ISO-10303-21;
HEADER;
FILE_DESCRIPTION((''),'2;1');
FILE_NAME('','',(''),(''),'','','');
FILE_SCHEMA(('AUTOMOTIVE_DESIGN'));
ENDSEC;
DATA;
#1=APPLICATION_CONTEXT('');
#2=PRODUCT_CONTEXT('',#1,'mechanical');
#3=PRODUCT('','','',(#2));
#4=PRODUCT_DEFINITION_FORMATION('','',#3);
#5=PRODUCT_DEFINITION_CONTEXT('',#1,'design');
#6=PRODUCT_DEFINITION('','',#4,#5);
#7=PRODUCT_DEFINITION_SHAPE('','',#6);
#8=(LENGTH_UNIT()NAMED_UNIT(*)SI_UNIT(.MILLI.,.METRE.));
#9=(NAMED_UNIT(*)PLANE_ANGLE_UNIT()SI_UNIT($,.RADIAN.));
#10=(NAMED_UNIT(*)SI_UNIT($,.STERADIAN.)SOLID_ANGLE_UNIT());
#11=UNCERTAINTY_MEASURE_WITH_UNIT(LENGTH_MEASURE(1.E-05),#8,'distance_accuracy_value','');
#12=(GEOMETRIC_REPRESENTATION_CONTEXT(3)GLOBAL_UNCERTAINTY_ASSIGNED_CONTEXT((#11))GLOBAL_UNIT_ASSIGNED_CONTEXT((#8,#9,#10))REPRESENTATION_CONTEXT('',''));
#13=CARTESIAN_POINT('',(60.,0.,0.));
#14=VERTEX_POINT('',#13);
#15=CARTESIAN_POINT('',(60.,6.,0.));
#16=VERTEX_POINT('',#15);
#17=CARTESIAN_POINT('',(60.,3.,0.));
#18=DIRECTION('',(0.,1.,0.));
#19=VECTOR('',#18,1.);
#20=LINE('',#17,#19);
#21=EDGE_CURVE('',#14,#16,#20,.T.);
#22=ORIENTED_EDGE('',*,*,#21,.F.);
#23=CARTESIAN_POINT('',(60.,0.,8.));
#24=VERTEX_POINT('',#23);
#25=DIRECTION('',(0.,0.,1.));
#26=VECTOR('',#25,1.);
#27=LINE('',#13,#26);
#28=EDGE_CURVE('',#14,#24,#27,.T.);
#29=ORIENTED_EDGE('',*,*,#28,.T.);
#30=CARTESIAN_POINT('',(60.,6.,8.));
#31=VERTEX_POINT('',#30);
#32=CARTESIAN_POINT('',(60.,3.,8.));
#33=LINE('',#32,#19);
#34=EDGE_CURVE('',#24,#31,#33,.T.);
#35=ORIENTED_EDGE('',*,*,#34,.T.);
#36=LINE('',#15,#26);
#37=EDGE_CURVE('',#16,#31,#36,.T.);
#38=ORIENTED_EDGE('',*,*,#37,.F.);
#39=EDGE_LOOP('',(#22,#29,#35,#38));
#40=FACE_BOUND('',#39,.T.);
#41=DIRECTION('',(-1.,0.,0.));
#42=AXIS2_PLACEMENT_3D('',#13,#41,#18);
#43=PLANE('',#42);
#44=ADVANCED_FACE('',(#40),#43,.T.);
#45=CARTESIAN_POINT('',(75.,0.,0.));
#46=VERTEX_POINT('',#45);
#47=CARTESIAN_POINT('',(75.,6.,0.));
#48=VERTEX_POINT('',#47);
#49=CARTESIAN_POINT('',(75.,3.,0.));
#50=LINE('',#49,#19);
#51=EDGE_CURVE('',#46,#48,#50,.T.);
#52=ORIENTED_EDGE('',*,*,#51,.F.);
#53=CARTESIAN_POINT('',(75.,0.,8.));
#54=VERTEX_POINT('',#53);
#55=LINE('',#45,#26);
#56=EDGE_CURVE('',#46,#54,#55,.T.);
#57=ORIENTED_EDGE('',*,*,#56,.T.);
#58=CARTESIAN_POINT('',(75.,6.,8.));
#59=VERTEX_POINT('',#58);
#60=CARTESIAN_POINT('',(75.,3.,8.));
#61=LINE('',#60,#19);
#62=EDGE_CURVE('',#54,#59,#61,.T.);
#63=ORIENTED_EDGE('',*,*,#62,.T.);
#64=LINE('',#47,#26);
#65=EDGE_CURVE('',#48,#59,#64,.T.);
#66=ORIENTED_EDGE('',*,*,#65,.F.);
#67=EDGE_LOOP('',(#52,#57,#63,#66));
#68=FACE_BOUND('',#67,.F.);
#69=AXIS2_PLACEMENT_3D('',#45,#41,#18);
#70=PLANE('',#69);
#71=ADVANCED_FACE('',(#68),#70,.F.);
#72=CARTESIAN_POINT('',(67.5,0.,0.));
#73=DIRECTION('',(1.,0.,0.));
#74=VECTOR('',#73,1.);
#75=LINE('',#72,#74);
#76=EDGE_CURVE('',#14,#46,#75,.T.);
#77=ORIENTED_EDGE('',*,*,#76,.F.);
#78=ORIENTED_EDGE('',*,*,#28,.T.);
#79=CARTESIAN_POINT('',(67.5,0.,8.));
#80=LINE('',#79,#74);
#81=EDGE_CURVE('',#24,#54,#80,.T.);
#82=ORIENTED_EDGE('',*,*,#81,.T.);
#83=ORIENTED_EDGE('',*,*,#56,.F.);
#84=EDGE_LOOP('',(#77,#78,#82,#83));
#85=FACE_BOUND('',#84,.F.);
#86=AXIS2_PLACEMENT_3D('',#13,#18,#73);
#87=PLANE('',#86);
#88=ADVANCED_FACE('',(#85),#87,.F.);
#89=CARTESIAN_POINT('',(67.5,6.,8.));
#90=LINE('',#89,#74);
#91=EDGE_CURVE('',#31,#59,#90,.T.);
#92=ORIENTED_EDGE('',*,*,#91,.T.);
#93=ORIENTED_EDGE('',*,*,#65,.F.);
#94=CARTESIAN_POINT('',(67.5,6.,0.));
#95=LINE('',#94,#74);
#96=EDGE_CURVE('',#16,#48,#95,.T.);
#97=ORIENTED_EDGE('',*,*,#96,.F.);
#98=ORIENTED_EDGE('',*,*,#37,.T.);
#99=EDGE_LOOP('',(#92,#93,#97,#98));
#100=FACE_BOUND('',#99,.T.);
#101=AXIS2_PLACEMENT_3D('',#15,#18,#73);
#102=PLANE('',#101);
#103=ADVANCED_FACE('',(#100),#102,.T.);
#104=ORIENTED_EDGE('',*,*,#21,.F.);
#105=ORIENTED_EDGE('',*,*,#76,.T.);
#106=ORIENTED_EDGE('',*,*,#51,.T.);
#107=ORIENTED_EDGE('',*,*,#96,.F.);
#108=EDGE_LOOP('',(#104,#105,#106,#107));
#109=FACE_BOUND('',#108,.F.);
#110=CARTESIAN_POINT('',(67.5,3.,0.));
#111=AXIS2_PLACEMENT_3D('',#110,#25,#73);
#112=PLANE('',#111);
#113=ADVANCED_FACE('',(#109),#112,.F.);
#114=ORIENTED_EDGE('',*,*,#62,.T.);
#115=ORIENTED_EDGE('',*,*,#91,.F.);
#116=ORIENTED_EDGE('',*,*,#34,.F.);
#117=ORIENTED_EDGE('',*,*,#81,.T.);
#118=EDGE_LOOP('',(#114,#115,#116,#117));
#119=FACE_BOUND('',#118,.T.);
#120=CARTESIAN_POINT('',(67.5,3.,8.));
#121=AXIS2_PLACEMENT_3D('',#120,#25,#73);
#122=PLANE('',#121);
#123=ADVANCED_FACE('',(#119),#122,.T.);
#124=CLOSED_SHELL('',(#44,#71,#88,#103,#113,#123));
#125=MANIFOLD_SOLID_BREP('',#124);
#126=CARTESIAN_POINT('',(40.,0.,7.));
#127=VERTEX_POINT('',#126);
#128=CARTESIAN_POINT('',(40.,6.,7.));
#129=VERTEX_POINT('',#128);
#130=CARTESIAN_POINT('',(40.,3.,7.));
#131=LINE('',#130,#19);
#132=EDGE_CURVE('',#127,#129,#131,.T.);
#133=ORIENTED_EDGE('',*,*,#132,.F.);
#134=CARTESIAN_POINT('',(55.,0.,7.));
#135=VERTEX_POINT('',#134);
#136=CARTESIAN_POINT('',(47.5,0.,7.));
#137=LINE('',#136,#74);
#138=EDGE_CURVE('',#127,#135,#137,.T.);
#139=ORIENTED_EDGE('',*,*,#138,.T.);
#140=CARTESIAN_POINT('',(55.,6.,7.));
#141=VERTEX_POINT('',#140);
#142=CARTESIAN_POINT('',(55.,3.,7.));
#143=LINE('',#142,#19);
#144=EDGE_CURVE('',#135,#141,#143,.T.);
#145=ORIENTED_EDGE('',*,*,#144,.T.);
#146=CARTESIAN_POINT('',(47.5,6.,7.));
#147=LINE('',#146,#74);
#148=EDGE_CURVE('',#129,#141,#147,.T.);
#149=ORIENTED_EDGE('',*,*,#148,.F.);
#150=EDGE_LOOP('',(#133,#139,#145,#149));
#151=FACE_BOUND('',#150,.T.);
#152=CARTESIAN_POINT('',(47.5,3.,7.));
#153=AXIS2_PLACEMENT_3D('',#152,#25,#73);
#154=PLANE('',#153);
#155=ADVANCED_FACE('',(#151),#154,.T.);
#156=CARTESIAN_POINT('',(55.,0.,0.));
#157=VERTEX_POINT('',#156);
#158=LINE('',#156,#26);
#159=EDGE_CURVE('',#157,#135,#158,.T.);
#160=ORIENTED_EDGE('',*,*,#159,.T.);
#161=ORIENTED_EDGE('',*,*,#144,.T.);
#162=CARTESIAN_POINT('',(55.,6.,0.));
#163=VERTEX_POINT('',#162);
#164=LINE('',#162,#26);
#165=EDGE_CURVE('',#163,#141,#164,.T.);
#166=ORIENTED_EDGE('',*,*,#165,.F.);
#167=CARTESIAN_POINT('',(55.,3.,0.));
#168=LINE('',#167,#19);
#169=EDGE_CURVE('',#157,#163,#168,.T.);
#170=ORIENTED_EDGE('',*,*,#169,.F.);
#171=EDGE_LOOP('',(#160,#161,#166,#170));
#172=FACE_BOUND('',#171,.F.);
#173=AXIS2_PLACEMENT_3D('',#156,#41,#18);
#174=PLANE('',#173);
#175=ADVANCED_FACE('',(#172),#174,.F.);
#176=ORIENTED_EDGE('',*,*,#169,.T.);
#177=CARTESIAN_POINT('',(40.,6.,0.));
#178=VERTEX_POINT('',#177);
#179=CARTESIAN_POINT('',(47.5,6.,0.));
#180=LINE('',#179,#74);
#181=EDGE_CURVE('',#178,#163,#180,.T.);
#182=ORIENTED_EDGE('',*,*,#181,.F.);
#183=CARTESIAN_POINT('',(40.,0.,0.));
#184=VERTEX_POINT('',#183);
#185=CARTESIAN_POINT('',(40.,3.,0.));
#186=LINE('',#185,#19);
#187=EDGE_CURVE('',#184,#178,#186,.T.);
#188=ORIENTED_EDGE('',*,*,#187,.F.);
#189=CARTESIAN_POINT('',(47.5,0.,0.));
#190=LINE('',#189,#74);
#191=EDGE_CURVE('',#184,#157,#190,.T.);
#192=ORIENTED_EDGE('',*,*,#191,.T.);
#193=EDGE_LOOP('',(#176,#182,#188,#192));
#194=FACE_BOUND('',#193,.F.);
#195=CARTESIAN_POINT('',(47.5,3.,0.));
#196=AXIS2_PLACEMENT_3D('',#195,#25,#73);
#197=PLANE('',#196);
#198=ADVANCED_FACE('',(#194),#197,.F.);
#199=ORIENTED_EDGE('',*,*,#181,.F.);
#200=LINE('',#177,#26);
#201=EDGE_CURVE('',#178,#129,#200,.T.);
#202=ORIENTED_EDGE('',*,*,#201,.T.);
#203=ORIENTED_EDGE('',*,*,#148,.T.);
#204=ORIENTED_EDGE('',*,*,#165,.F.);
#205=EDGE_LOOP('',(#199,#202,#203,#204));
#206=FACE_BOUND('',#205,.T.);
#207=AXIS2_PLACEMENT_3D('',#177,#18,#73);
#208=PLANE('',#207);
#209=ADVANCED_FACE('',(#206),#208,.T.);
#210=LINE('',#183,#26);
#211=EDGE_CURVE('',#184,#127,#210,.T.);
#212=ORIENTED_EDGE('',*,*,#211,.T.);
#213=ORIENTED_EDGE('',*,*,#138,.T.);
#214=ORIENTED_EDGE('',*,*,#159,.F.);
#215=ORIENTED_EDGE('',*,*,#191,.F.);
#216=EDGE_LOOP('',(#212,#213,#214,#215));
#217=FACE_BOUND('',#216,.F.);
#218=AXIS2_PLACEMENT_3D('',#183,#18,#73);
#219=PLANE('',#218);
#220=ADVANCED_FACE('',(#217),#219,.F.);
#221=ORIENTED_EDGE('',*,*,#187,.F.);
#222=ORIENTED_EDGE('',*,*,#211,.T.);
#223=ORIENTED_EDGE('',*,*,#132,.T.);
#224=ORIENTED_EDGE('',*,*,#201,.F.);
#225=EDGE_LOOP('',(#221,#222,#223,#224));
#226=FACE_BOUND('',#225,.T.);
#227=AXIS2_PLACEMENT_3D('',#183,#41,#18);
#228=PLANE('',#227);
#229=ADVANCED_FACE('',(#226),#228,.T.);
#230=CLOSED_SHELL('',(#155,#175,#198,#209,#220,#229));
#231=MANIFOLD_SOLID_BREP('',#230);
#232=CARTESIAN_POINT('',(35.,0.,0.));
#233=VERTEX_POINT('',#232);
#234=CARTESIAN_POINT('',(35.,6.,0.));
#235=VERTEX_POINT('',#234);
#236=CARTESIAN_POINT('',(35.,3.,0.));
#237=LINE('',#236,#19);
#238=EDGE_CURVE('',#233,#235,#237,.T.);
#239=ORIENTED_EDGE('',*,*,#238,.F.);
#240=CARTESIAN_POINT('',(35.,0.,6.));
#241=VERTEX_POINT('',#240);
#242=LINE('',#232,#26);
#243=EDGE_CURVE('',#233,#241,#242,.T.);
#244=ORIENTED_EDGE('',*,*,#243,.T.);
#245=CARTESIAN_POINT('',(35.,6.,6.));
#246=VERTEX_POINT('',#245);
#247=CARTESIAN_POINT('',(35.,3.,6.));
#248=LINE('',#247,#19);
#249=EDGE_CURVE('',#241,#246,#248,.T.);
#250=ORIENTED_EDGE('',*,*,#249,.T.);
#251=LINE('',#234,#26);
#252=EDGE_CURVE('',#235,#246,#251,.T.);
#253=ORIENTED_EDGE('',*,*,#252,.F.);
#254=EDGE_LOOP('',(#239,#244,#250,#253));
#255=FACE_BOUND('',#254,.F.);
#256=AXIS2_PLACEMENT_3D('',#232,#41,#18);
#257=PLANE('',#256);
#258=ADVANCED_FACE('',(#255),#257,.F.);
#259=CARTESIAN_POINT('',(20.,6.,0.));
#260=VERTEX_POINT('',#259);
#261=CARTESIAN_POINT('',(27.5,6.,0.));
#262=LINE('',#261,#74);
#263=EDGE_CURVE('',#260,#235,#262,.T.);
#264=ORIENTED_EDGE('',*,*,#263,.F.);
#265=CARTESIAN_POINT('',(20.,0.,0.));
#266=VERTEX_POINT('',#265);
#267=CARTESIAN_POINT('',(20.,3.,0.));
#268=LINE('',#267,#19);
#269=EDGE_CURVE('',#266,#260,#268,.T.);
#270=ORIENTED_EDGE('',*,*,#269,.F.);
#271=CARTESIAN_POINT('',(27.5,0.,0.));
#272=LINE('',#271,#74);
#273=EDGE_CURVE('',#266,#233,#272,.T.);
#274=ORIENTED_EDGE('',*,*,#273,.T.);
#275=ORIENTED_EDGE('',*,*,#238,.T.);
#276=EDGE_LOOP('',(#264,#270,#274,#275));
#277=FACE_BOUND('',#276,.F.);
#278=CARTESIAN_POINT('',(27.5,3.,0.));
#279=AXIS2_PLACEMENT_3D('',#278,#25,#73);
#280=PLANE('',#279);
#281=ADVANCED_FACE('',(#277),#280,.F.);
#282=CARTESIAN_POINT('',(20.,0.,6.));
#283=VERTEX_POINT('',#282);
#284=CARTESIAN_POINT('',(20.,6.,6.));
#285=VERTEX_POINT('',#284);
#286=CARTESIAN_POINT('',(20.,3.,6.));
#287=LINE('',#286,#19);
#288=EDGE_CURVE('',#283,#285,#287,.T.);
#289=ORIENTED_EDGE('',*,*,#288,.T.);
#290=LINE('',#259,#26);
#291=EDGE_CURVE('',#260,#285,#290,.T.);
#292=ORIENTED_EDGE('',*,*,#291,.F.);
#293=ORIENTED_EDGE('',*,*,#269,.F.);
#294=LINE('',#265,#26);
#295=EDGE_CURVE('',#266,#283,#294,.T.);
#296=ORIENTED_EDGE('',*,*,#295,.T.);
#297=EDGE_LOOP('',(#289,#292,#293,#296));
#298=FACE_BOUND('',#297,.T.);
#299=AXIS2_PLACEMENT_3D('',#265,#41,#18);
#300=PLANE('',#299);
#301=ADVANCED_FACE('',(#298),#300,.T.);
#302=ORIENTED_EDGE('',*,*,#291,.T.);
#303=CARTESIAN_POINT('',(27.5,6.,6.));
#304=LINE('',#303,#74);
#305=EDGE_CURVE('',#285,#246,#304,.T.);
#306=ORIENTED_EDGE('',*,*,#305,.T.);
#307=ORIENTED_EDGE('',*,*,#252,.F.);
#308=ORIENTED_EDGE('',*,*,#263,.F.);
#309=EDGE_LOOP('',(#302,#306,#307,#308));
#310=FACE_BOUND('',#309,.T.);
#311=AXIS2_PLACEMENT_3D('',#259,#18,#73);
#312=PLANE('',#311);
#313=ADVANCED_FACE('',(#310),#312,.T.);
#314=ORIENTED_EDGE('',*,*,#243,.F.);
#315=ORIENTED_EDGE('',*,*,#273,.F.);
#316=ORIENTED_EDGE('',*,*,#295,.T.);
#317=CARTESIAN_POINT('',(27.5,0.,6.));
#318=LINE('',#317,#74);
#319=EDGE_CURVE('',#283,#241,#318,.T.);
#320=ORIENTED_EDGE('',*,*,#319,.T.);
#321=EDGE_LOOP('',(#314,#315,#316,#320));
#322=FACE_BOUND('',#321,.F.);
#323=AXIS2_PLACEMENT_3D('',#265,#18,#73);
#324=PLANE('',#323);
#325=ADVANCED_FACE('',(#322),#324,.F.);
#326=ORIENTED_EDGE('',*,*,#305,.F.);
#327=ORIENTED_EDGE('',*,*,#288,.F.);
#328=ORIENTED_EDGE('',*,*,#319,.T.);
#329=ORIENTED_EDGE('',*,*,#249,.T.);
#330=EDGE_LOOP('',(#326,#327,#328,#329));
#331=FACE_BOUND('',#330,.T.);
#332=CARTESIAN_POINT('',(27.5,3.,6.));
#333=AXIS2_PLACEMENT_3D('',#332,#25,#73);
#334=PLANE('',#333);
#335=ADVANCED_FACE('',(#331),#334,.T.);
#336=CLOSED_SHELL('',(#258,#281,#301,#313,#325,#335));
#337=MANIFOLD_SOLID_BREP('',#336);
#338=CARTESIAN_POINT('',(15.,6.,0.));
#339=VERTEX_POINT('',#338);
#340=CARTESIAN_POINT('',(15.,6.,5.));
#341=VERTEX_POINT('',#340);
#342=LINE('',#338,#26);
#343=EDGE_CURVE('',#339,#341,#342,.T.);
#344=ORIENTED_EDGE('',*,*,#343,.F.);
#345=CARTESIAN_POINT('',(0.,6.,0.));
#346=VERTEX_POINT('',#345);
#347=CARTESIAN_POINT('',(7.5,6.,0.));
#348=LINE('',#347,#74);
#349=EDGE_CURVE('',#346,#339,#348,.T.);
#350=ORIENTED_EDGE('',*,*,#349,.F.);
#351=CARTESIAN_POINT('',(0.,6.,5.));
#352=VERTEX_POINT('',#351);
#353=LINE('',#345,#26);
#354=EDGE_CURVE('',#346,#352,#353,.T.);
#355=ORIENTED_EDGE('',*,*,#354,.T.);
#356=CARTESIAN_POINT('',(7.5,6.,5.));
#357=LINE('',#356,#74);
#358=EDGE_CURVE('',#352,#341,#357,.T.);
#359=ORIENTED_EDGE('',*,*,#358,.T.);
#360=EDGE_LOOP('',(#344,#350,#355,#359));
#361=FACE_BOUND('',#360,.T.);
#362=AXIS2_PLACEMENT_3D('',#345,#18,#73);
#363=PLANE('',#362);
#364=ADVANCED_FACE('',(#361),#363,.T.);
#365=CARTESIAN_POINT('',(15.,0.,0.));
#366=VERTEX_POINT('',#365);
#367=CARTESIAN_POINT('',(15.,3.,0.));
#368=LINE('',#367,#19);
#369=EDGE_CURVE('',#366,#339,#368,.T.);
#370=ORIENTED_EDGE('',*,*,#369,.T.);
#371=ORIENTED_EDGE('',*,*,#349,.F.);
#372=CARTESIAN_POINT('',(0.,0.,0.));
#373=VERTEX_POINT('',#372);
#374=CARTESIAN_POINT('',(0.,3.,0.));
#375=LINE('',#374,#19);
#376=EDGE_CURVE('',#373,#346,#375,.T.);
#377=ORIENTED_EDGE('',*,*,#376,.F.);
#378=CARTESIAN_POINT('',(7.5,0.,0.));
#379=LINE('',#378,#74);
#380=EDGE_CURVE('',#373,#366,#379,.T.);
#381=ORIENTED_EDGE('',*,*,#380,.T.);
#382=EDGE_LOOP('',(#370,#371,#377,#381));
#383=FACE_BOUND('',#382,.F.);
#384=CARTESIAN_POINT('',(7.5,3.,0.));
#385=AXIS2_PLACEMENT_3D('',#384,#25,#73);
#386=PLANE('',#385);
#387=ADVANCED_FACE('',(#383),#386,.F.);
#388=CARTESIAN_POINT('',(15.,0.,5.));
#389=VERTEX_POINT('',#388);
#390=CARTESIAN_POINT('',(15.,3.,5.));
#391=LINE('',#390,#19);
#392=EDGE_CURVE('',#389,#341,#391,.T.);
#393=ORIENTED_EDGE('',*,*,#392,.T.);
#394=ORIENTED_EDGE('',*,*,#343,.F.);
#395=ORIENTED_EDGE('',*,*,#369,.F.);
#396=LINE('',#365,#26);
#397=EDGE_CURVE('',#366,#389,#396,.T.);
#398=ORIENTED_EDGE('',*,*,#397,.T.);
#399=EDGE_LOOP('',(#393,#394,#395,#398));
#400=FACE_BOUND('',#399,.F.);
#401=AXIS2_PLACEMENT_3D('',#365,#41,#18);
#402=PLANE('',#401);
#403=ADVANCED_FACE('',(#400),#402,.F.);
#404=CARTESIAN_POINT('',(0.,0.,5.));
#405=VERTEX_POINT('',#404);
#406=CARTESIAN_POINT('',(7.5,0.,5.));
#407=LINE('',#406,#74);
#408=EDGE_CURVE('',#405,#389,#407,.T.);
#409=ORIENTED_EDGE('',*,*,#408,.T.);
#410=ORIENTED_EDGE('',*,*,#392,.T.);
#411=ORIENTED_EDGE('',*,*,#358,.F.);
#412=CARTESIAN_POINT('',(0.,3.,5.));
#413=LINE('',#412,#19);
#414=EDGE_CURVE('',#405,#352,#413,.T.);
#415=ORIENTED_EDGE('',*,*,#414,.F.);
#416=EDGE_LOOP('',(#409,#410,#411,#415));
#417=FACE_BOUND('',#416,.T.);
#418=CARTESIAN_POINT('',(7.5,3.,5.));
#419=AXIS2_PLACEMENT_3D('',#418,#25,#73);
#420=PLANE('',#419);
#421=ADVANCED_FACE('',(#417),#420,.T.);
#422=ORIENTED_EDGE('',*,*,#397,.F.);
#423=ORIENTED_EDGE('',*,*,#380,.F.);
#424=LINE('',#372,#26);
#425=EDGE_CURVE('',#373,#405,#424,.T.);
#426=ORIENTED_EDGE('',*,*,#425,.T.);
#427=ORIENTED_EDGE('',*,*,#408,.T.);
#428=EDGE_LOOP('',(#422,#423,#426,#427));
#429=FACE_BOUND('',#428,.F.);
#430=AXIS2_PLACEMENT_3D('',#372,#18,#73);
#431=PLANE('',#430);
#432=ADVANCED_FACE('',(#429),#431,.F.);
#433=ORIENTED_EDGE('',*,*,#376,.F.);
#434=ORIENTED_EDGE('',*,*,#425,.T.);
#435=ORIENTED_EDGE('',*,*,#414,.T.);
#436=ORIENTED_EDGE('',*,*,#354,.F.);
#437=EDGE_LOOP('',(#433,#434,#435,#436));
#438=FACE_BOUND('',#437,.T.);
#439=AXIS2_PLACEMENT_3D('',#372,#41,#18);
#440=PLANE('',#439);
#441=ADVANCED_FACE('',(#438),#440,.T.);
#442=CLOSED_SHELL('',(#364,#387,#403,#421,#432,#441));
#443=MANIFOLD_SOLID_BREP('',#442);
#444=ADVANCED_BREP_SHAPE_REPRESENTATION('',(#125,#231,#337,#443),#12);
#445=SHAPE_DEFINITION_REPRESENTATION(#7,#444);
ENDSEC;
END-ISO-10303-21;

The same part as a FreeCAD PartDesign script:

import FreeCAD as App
import Part
import Sketcher
from FreeCAD import Vector


def add_polygon(sketch, points):
    """Adds a closed chain of lines whose ends are joined by coincident constraints."""
    first, n = sketch.GeometryCount, len(points)
    for a, b in zip(points, points[1:] + points[:1]):
        sketch.addGeometry(Part.LineSegment(App.Vector(*a, 0), App.Vector(*b, 0)), False)
    for i in range(n):
        sketch.addConstraint(Sketcher.Constraint("Coincident", first + i, 2, first + (i + 1) % n, 1))

doc = App.newDocument("Part")
params = doc.addObject("Spreadsheet::Sheet", "Params")
for row, (alias, value) in enumerate([
    ("sketch1_width", "15 mm"),
    ("sketch1_height", "6 mm"),
    ("pad1_length", "5 mm"),
    ("sketch2_width", "15 mm"),
    ("sketch2_height", "6 mm"),
    ("pad2_length", "6 mm"),
    ("sketch3_width", "15 mm"),
    ("sketch3_height", "6 mm"),
    ("pad3_length", "7 mm"),
    ("sketch4_width", "15 mm"),
    ("sketch4_height", "6 mm"),
    ("pad4_length", "8 mm"),
], start=1):
    params.set(f"A{row}", alias)
    params.set(f"B{row}", "=" + value)
    params.setAlias(f"B{row}", alias)

body = doc.addObject("PartDesign::Body", "Body")

sketch1 = doc.addObject("Sketcher::SketchObject", "Sketch")
body.addObject(sketch1)
sketch1.AttachmentSupport = (doc.XY_Plane, [""])
sketch1.MapMode = "FlatFace"
add_polygon(sketch1, [(0, 6), (0, 0), (15, 0), (15, 6)])
sketch1.addConstraint([
    Sketcher.Constraint("Vertical", 0),
    Sketcher.Constraint("Horizontal", 1),
    Sketcher.Constraint("Vertical", 2),
    Sketcher.Constraint("Horizontal", 3),
    Sketcher.Constraint("Coincident", 0, 2, -1, 1),
    Sketcher.Constraint("DistanceX", 1, 1, 1, 2, 15.0),
    Sketcher.Constraint("DistanceY", 0, 2, 0, 1, 6.0),
])
sketch1.setExpression("Constraints[9]", "Params.sketch1_width")
sketch1.setExpression("Constraints[10]", "Params.sketch1_height")
pad1 = doc.addObject("PartDesign::Pad", "Pad")
body.addObject(pad1)
pad1.Profile = sketch1
pad1.setExpression("Length", "Params.pad1_length")
body2 = doc.addObject("PartDesign::Body", "Body001")

sketch2 = doc.addObject("Sketcher::SketchObject", "Sketch001")
body2.addObject(sketch2)
sketch2.AttachmentSupport = (doc.getObject("XY_Plane001"), [""])
sketch2.MapMode = "FlatFace"
add_polygon(sketch2, [(20, 6), (20, 0), (35, 0), (35, 6)])
sketch2.addConstraint([
    Sketcher.Constraint("Vertical", 0),
    Sketcher.Constraint("Horizontal", 1),
    Sketcher.Constraint("Vertical", 2),
    Sketcher.Constraint("Horizontal", 3),
    Sketcher.Constraint("PointOnObject", 0, 2, -1),
    Sketcher.Constraint("DistanceX", 1, 1, 1, 2, 15.0),
    Sketcher.Constraint("DistanceY", 0, 2, 0, 1, 6.0),
    Sketcher.Constraint("DistanceX", -1, 1, 0, 2, 20.0),
])
sketch2.setExpression("Constraints[9]", "Params.sketch2_width")
sketch2.setExpression("Constraints[10]", "Params.sketch2_height")
pad2 = doc.addObject("PartDesign::Pad", "Pad001")
body2.addObject(pad2)
pad2.Profile = sketch2
pad2.setExpression("Length", "Params.pad2_length")
body3 = doc.addObject("PartDesign::Body", "Body002")

sketch3 = doc.addObject("Sketcher::SketchObject", "Sketch002")
body3.addObject(sketch3)
sketch3.AttachmentSupport = (doc.getObject("XY_Plane002"), [""])
sketch3.MapMode = "FlatFace"
add_polygon(sketch3, [(40, 6), (40, 0), (55, 0), (55, 6)])
sketch3.addConstraint([
    Sketcher.Constraint("Vertical", 0),
    Sketcher.Constraint("Horizontal", 1),
    Sketcher.Constraint("Vertical", 2),
    Sketcher.Constraint("Horizontal", 3),
    Sketcher.Constraint("PointOnObject", 0, 2, -1),
    Sketcher.Constraint("DistanceX", 1, 1, 1, 2, 15.0),
    Sketcher.Constraint("DistanceY", 0, 2, 0, 1, 6.0),
    Sketcher.Constraint("DistanceX", -1, 1, 0, 2, 40.0),
])
sketch3.setExpression("Constraints[9]", "Params.sketch3_width")
sketch3.setExpression("Constraints[10]", "Params.sketch3_height")
pad3 = doc.addObject("PartDesign::Pad", "Pad002")
body3.addObject(pad3)
pad3.Profile = sketch3
pad3.setExpression("Length", "Params.pad3_length")
body4 = doc.addObject("PartDesign::Body", "Body003")

sketch4 = doc.addObject("Sketcher::SketchObject", "Sketch003")
body4.addObject(sketch4)
sketch4.AttachmentSupport = (doc.getObject("XY_Plane003"), [""])
sketch4.MapMode = "FlatFace"
add_polygon(sketch4, [(60, 6), (60, 0), (75, 0), (75, 6)])
sketch4.addConstraint([
    Sketcher.Constraint("Vertical", 0),
    Sketcher.Constraint("Horizontal", 1),
    Sketcher.Constraint("Vertical", 2),
    Sketcher.Constraint("Horizontal", 3),
    Sketcher.Constraint("PointOnObject", 0, 2, -1),
    Sketcher.Constraint("DistanceX", 1, 1, 1, 2, 15.0),
    Sketcher.Constraint("DistanceY", 0, 2, 0, 1, 6.0),
    Sketcher.Constraint("DistanceX", -1, 1, 0, 2, 60.0),
])
sketch4.setExpression("Constraints[9]", "Params.sketch4_width")
sketch4.setExpression("Constraints[10]", "Params.sketch4_height")
pad4 = doc.addObject("PartDesign::Pad", "Pad003")
body4.addObject(pad4)
pad4.Profile = sketch4
pad4.setExpression("Length", "Params.pad4_length")

doc.recompute()
